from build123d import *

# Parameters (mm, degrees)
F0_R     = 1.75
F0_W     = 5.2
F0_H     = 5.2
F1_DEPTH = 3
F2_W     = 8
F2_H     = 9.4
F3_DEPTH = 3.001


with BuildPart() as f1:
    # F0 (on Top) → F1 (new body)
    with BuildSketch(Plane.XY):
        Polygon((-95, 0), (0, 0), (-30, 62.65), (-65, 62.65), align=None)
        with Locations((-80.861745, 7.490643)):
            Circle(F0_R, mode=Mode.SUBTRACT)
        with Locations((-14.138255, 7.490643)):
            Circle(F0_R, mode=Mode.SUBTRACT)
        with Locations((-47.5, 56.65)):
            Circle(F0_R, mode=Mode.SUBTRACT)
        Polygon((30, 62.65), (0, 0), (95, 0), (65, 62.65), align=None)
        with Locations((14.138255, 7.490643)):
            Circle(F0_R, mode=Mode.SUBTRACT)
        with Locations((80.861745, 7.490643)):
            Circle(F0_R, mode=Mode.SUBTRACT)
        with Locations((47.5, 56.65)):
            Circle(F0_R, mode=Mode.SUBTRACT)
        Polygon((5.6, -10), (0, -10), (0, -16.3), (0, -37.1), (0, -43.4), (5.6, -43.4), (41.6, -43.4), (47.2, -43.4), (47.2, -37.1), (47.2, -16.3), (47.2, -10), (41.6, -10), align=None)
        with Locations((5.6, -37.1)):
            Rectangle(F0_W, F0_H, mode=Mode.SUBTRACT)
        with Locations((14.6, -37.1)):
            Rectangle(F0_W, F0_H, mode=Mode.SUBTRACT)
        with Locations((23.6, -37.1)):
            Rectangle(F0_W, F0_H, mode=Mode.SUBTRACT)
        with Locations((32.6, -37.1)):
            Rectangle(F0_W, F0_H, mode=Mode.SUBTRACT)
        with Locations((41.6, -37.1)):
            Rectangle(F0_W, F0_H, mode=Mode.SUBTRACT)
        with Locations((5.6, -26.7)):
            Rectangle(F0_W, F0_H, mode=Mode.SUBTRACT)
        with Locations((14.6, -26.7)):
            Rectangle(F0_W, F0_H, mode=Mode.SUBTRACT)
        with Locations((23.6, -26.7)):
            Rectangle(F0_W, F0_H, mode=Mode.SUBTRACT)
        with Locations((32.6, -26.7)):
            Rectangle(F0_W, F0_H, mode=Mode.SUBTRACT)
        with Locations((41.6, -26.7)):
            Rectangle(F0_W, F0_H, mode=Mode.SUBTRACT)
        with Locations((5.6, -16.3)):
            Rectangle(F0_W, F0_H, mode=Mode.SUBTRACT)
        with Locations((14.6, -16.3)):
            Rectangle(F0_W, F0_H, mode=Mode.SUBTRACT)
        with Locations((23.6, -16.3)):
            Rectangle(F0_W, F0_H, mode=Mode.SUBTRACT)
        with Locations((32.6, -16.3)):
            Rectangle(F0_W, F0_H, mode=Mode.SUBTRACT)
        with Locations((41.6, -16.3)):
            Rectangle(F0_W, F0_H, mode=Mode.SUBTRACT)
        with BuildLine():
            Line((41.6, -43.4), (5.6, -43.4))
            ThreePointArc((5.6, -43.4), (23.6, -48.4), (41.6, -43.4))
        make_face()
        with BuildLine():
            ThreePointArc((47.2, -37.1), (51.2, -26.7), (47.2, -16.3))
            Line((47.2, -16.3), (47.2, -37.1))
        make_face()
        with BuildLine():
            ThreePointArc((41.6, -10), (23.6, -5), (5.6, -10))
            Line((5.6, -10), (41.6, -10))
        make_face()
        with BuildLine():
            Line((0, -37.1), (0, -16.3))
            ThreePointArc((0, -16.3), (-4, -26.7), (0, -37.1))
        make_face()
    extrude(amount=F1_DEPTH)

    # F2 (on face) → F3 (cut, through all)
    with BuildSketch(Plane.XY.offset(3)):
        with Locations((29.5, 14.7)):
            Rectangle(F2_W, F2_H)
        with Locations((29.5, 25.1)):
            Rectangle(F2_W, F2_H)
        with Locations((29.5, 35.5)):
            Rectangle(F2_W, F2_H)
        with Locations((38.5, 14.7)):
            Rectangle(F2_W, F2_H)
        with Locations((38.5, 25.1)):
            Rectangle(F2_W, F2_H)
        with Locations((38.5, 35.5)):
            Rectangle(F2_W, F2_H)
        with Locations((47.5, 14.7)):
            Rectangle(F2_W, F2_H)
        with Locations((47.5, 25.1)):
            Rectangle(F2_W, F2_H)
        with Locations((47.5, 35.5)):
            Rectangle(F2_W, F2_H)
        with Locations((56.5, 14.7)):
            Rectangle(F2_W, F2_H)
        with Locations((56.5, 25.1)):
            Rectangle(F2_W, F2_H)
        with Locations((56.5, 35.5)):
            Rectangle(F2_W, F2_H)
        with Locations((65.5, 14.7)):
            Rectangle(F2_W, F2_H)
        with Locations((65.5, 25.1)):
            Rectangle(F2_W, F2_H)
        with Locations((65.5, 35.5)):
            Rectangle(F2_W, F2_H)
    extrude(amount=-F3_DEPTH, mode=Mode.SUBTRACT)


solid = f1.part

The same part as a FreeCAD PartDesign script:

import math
import FreeCAD as App
import Part
import Sketcher

V = App.Vector
Q = App.Units.Quantity

doc = App.newDocument("Part")
body = doc.addObject("PartDesign::Body", "Body")
body.AllowCompound = True

sketch1 = body.newObject("Sketcher::SketchObject", "Sketch")
sketch1.AttachmentSupport = (doc.getObject("XY_Plane"), [""])
sketch1.MapMode = "FlatFace"
sketch1.addGeometry(Part.LineSegment(V(-95, 0, 0), V(0, 0, 0)), False)
sketch1.addGeometry(Part.LineSegment(V(0, 0, 0), V(-30, 62.6, 0)), False)
sketch1.addGeometry(Part.LineSegment(V(-30, 62.6, 0), V(-65, 62.6, 0)), False)
sketch1.addGeometry(Part.LineSegment(V(-65, 62.6, 0), V(-95, 0, 0)), False)
sketch1.addGeometry(Part.Circle(V(-80.9, 7.5, 0), V(0, 0, 1), 1.8), False)
sketch1.addGeometry(Part.Circle(V(-14.1, 7.5, 0), V(0, 0, 1), 1.8), False)
sketch1.addGeometry(Part.Circle(V(-47.5, 56.6, 0), V(0, 0, 1), 1.8), False)
sketch1.addGeometry(Part.LineSegment(V(30, 62.6, 0), V(0, 0, 0)), False)
sketch1.addGeometry(Part.LineSegment(V(0, 0, 0), V(95, 0, 0)), False)
sketch1.addGeometry(Part.LineSegment(V(95, 0, 0), V(65, 62.6, 0)), False)
sketch1.addGeometry(Part.LineSegment(V(65, 62.6, 0), V(30, 62.6, 0)), False)
sketch1.addGeometry(Part.Circle(V(14.1, 7.5, 0), V(0, 0, 1), 1.8), False)
sketch1.addGeometry(Part.Circle(V(80.9, 7.5, 0), V(0, 0, 1), 1.8), False)
sketch1.addGeometry(Part.Circle(V(47.5, 56.6, 0), V(0, 0, 1), 1.8), False)
sketch1.addGeometry(Part.LineSegment(V(0, -10, 0), V(0, -16.3, 0)), False)
sketch1.addGeometry(Part.ArcOfCircle(Part.Circle(V(11.5, -26.7, 0), V(0, 0, 1), 15.5), math.radians(138), math.radians(222)), False)
sketch1.addGeometry(Part.LineSegment(V(0, -37.1, 0), V(0, -43.4, 0)), False)
sketch1.addGeometry(Part.LineSegment(V(0, -43.4, 0), V(5.6, -43.4, 0)), False)
sketch1.addGeometry(Part.ArcOfCircle(Part.Circle(V(23.6, -13.5, 0), V(0, 0, 1), 34.9), math.radians(-121), math.radians(-59)), False)
sketch1.addGeometry(Part.LineSegment(V(41.6, -43.4, 0), V(47.2, -43.4, 0)), False)
sketch1.addGeometry(Part.LineSegment(V(47.2, -43.4, 0), V(47.2, -37.1, 0)), False)
sketch1.addGeometry(Part.ArcOfCircle(Part.Circle(V(35.7, -26.7, 0), V(0, 0, 1), 15.5), math.radians(-42), math.radians(42)), False)
sketch1.addGeometry(Part.LineSegment(V(47.2, -16.3, 0), V(47.2, -10, 0)), False)
sketch1.addGeometry(Part.LineSegment(V(47.2, -10, 0), V(41.6, -10, 0)), False)
sketch1.addGeometry(Part.ArcOfCircle(Part.Circle(V(23.6, -39.9, 0), V(0, 0, 1), 34.9), math.radians(59), math.radians(121)), False)
sketch1.addGeometry(Part.LineSegment(V(5.6, -10, 0), V(0, -10, 0)), False)
sketch1.addGeometry(Part.LineSegment(V(8.2, -39.7, 0), V(3, -39.7, 0)), False)
sketch1.addGeometry(Part.LineSegment(V(3, -39.7, 0), V(3, -34.5, 0)), False)
sketch1.addGeometry(Part.LineSegment(V(3, -34.5, 0), V(8.2, -34.5, 0)), False)
sketch1.addGeometry(Part.LineSegment(V(8.2, -34.5, 0), V(8.2, -39.7, 0)), False)
sketch1.addGeometry(Part.LineSegment(V(17.2, -39.7, 0), V(12, -39.7, 0)), False)
sketch1.addGeometry(Part.LineSegment(V(12, -39.7, 0), V(12, -34.5, 0)), False)
sketch1.addGeometry(Part.LineSegment(V(12, -34.5, 0), V(17.2, -34.5, 0)), False)
sketch1.addGeometry(Part.LineSegment(V(17.2, -34.5, 0), V(17.2, -39.7, 0)), False)
sketch1.addGeometry(Part.LineSegment(V(26.2, -39.7, 0), V(21, -39.7, 0)), False)
sketch1.addGeometry(Part.LineSegment(V(21, -39.7, 0), V(21, -34.5, 0)), False)
sketch1.addGeometry(Part.LineSegment(V(21, -34.5, 0), V(26.2, -34.5, 0)), False)
sketch1.addGeometry(Part.LineSegment(V(26.2, -34.5, 0), V(26.2, -39.7, 0)), False)
sketch1.addGeometry(Part.LineSegment(V(35.2, -39.7, 0), V(30, -39.7, 0)), False)
sketch1.addGeometry(Part.LineSegment(V(30, -39.7, 0), V(30, -34.5, 0)), False)
sketch1.addGeometry(Part.LineSegment(V(30, -34.5, 0), V(35.2, -34.5, 0)), False)
sketch1.addGeometry(Part.LineSegment(V(35.2, -34.5, 0), V(35.2, -39.7, 0)), False)
sketch1.addGeometry(Part.LineSegment(V(44.2, -39.7, 0), V(39, -39.7, 0)), False)
sketch1.addGeometry(Part.LineSegment(V(39, -39.7, 0), V(39, -34.5, 0)), False)
sketch1.addGeometry(Part.LineSegment(V(39, -34.5, 0), V(44.2, -34.5, 0)), False)
sketch1.addGeometry(Part.LineSegment(V(44.2, -34.5, 0), V(44.2, -39.7, 0)), False)
sketch1.addGeometry(Part.LineSegment(V(8.2, -29.3, 0), V(3, -29.3, 0)), False)
sketch1.addGeometry(Part.LineSegment(V(3, -29.3, 0), V(3, -24.1, 0)), False)
sketch1.addGeometry(Part.LineSegment(V(3, -24.1, 0), V(8.2, -24.1, 0)), False)
sketch1.addGeometry(Part.LineSegment(V(8.2, -24.1, 0), V(8.2, -29.3, 0)), False)
sketch1.addGeometry(Part.LineSegment(V(17.2, -29.3, 0), V(12, -29.3, 0)), False)
sketch1.addGeometry(Part.LineSegment(V(12, -29.3, 0), V(12, -24.1, 0)), False)
sketch1.addGeometry(Part.LineSegment(V(12, -24.1, 0), V(17.2, -24.1, 0)), False)
sketch1.addGeometry(Part.LineSegment(V(17.2, -24.1, 0), V(17.2, -29.3, 0)), False)
sketch1.addGeometry(Part.LineSegment(V(8.2, -18.9, 0), V(3, -18.9, 0)), False)
sketch1.addGeometry(Part.LineSegment(V(3, -18.9, 0), V(3, -13.7, 0)), False)
sketch1.addGeometry(Part.LineSegment(V(3, -13.7, 0), V(8.2, -13.7, 0)), False)
sketch1.addGeometry(Part.LineSegment(V(8.2, -13.7, 0), V(8.2, -18.9, 0)), False)
sketch1.addGeometry(Part.LineSegment(V(17.2, -18.9, 0), V(12, -18.9, 0)), False)
sketch1.addGeometry(Part.LineSegment(V(12, -18.9, 0), V(12, -13.7, 0)), False)
sketch1.addGeometry(Part.LineSegment(V(12, -13.7, 0), V(17.2, -13.7, 0)), False)
sketch1.addGeometry(Part.LineSegment(V(17.2, -13.7, 0), V(17.2, -18.9, 0)), False)
sketch1.addGeometry(Part.LineSegment(V(26.2, -29.3, 0), V(21, -29.3, 0)), False)
sketch1.addGeometry(Part.LineSegment(V(21, -29.3, 0), V(21, -24.1, 0)), False)
sketch1.addGeometry(Part.LineSegment(V(21, -24.1, 0), V(26.2, -24.1, 0)), False)
sketch1.addGeometry(Part.LineSegment(V(26.2, -24.1, 0), V(26.2, -29.3, 0)), False)
sketch1.addGeometry(Part.LineSegment(V(35.2, -29.3, 0), V(30, -29.3, 0)), False)
sketch1.addGeometry(Part.LineSegment(V(30, -29.3, 0), V(30, -24.1, 0)), False)
sketch1.addGeometry(Part.LineSegment(V(30, -24.1, 0), V(35.2, -24.1, 0)), False)
sketch1.addGeometry(Part.LineSegment(V(35.2, -24.1, 0), V(35.2, -29.3, 0)), False)
sketch1.addGeometry(Part.LineSegment(V(44.2, -29.3, 0), V(39, -29.3, 0)), False)
sketch1.addGeometry(Part.LineSegment(V(39, -29.3, 0), V(39, -24.1, 0)), False)
sketch1.addGeometry(Part.LineSegment(V(39, -24.1, 0), V(44.2, -24.1, 0)), False)
sketch1.addGeometry(Part.LineSegment(V(44.2, -24.1, 0), V(44.2, -29.3, 0)), False)
sketch1.addGeometry(Part.LineSegment(V(26.2, -18.9, 0), V(21, -18.9, 0)), False)
sketch1.addGeometry(Part.LineSegment(V(21, -18.9, 0), V(21, -13.7, 0)), False)
sketch1.addGeometry(Part.LineSegment(V(21, -13.7, 0), V(26.2, -13.7, 0)), False)
sketch1.addGeometry(Part.LineSegment(V(26.2, -13.7, 0), V(26.2, -18.9, 0)), False)
sketch1.addGeometry(Part.LineSegment(V(35.2, -18.9, 0), V(30, -18.9, 0)), False)
sketch1.addGeometry(Part.LineSegment(V(30, -18.9, 0), V(30, -13.7, 0)), False)
sketch1.addGeometry(Part.LineSegment(V(30, -13.7, 0), V(35.2, -13.7, 0)), False)
sketch1.addGeometry(Part.LineSegment(V(35.2, -13.7, 0), V(35.2, -18.9, 0)), False)
sketch1.addGeometry(Part.LineSegment(V(44.2, -18.9, 0), V(39, -18.9, 0)), False)
sketch1.addGeometry(Part.LineSegment(V(39, -18.9, 0), V(39, -13.7, 0)), False)
sketch1.addGeometry(Part.LineSegment(V(39, -13.7, 0), V(44.2, -13.7, 0)), False)
sketch1.addGeometry(Part.LineSegment(V(44.2, -13.7, 0), V(44.2, -18.9, 0)), False)
sketch1.addConstraint(Sketcher.Constraint("Coincident", 0, 2, 1, 1))
sketch1.addConstraint(Sketcher.Constraint("Coincident", 1, 2, 2, 1))
sketch1.addConstraint(Sketcher.Constraint("Coincident", 2, 2, 3, 1))
sketch1.addConstraint(Sketcher.Constraint("Coincident", 3, 2, 0, 1))
sketch1.addConstraint(Sketcher.Constraint("Coincident", 7, 2, 8, 1))
sketch1.addConstraint(Sketcher.Constraint("Coincident", 8, 2, 9, 1))
sketch1.addConstraint(Sketcher.Constraint("Coincident", 9, 2, 10, 1))
sketch1.addConstraint(Sketcher.Constraint("Coincident", 10, 2, 7, 1))
sketch1.addConstraint(Sketcher.Constraint("Coincident", 14, 2, 15, 1))
sketch1.addConstraint(Sketcher.Constraint("Coincident", 15, 2, 16, 1))
sketch1.addConstraint(Sketcher.Constraint("Coincident", 16, 2, 17, 1))
sketch1.addConstraint(Sketcher.Constraint("Coincident", 17, 2, 18, 1))
sketch1.addConstraint(Sketcher.Constraint("Coincident", 18, 2, 19, 1))
sketch1.addConstraint(Sketcher.Constraint("Coincident", 19, 2, 20, 1))
sketch1.addConstraint(Sketcher.Constraint("Coincident", 20, 2, 21, 1))
sketch1.addConstraint(Sketcher.Constraint("Coincident", 21, 2, 22, 1))
sketch1.addConstraint(Sketcher.Constraint("Coincident", 22, 2, 23, 1))
sketch1.addConstraint(Sketcher.Constraint("Coincident", 23, 2, 24, 1))
sketch1.addConstraint(Sketcher.Constraint("Coincident", 24, 2, 25, 1))
sketch1.addConstraint(Sketcher.Constraint("Coincident", 25, 2, 14, 1))
sketch1.addConstraint(Sketcher.Constraint("Coincident", 26, 2, 27, 1))
sketch1.addConstraint(Sketcher.Constraint("Coincident", 27, 2, 28, 1))
sketch1.addConstraint(Sketcher.Constraint("Coincident", 28, 2, 29, 1))
sketch1.addConstraint(Sketcher.Constraint("Coincident", 29, 2, 26, 1))
sketch1.addConstraint(Sketcher.Constraint("Coincident", 30, 2, 31, 1))
sketch1.addConstraint(Sketcher.Constraint("Coincident", 31, 2, 32, 1))
sketch1.addConstraint(Sketcher.Constraint("Coincident", 32, 2, 33, 1))
sketch1.addConstraint(Sketcher.Constraint("Coincident", 33, 2, 30, 1))
sketch1.addConstraint(Sketcher.Constraint("Coincident", 34, 2, 35, 1))
sketch1.addConstraint(Sketcher.Constraint("Coincident", 35, 2, 36, 1))
sketch1.addConstraint(Sketcher.Constraint("Coincident", 36, 2, 37, 1))
sketch1.addConstraint(Sketcher.Constraint("Coincident", 37, 2, 34, 1))
sketch1.addConstraint(Sketcher.Constraint("Coincident", 38, 2, 39, 1))
sketch1.addConstraint(Sketcher.Constraint("Coincident", 39, 2, 40, 1))
sketch1.addConstraint(Sketcher.Constraint("Coincident", 40, 2, 41, 1))
sketch1.addConstraint(Sketcher.Constraint("Coincident", 41, 2, 38, 1))
sketch1.addConstraint(Sketcher.Constraint("Coincident", 42, 2, 43, 1))
sketch1.addConstraint(Sketcher.Constraint("Coincident", 43, 2, 44, 1))
sketch1.addConstraint(Sketcher.Constraint("Coincident", 44, 2, 45, 1))
sketch1.addConstraint(Sketcher.Constraint("Coincident", 45, 2, 42, 1))
sketch1.addConstraint(Sketcher.Constraint("Coincident", 46, 2, 47, 1))
sketch1.addConstraint(Sketcher.Constraint("Coincident", 47, 2, 48, 1))
sketch1.addConstraint(Sketcher.Constraint("Coincident", 48, 2, 49, 1))
sketch1.addConstraint(Sketcher.Constraint("Coincident", 49, 2, 46, 1))
sketch1.addConstraint(Sketcher.Constraint("Coincident", 50, 2, 51, 1))
sketch1.addConstraint(Sketcher.Constraint("Coincident", 51, 2, 52, 1))
sketch1.addConstraint(Sketcher.Constraint("Coincident", 52, 2, 53, 1))
sketch1.addConstraint(Sketcher.Constraint("Coincident", 53, 2, 50, 1))
sketch1.addConstraint(Sketcher.Constraint("Coincident", 54, 2, 55, 1))
sketch1.addConstraint(Sketcher.Constraint("Coincident", 55, 2, 56, 1))
sketch1.addConstraint(Sketcher.Constraint("Coincident", 56, 2, 57, 1))
sketch1.addConstraint(Sketcher.Constraint("Coincident", 57, 2, 54, 1))
sketch1.addConstraint(Sketcher.Constraint("Coincident", 58, 2, 59, 1))
sketch1.addConstraint(Sketcher.Constraint("Coincident", 59, 2, 60, 1))
sketch1.addConstraint(Sketcher.Constraint("Coincident", 60, 2, 61, 1))
sketch1.addConstraint(Sketcher.Constraint("Coincident", 61, 2, 58, 1))
sketch1.addConstraint(Sketcher.Constraint("Coincident", 62, 2, 63, 1))
sketch1.addConstraint(Sketcher.Constraint("Coincident", 63, 2, 64, 1))
sketch1.addConstraint(Sketcher.Constraint("Coincident", 64, 2, 65, 1))
sketch1.addConstraint(Sketcher.Constraint("Coincident", 65, 2, 62, 1))
sketch1.addConstraint(Sketcher.Constraint("Coincident", 66, 2, 67, 1))
sketch1.addConstraint(Sketcher.Constraint("Coincident", 67, 2, 68, 1))
sketch1.addConstraint(Sketcher.Constraint("Coincident", 68, 2, 69, 1))
sketch1.addConstraint(Sketcher.Constraint("Coincident", 69, 2, 66, 1))
sketch1.addConstraint(Sketcher.Constraint("Coincident", 70, 2, 71, 1))
sketch1.addConstraint(Sketcher.Constraint("Coincident", 71, 2, 72, 1))
sketch1.addConstraint(Sketcher.Constraint("Coincident", 72, 2, 73, 1))
sketch1.addConstraint(Sketcher.Constraint("Coincident", 73, 2, 70, 1))
sketch1.addConstraint(Sketcher.Constraint("Coincident", 74, 2, 75, 1))
sketch1.addConstraint(Sketcher.Constraint("Coincident", 75, 2, 76, 1))
sketch1.addConstraint(Sketcher.Constraint("Coincident", 76, 2, 77, 1))
sketch1.addConstraint(Sketcher.Constraint("Coincident", 77, 2, 74, 1))
sketch1.addConstraint(Sketcher.Constraint("Coincident", 78, 2, 79, 1))
sketch1.addConstraint(Sketcher.Constraint("Coincident", 79, 2, 80, 1))
sketch1.addConstraint(Sketcher.Constraint("Coincident", 80, 2, 81, 1))
sketch1.addConstraint(Sketcher.Constraint("Coincident", 81, 2, 78, 1))
sketch1.addConstraint(Sketcher.Constraint("Coincident", 82, 2, 83, 1))
sketch1.addConstraint(Sketcher.Constraint("Coincident", 83, 2, 84, 1))
sketch1.addConstraint(Sketcher.Constraint("Coincident", 84, 2, 85, 1))
sketch1.addConstraint(Sketcher.Constraint("Coincident", 85, 2, 82, 1))
sketch1.addConstraint(Sketcher.Constraint("Horizontal", 0))
sketch1.addConstraint(Sketcher.Constraint("Horizontal", 2))
sketch1.addConstraint(Sketcher.Constraint("Horizontal", 8))
sketch1.addConstraint(Sketcher.Constraint("Horizontal", 10))
sketch1.addConstraint(Sketcher.Constraint("Vertical", 14))
sketch1.addConstraint(Sketcher.Constraint("Vertical", 16))
sketch1.addConstraint(Sketcher.Constraint("Horizontal", 17))
sketch1.addConstraint(Sketcher.Constraint("Horizontal", 19))
sketch1.addConstraint(Sketcher.Constraint("Vertical", 20))
sketch1.addConstraint(Sketcher.Constraint("Vertical", 22))
sketch1.addConstraint(Sketcher.Constraint("Horizontal", 23))
sketch1.addConstraint(Sketcher.Constraint("Horizontal", 25))
sketch1.addConstraint(Sketcher.Constraint("Horizontal", 26))
sketch1.addConstraint(Sketcher.Constraint("Vertical", 27))
sketch1.addConstraint(Sketcher.Constraint("Horizontal", 28))
sketch1.addConstraint(Sketcher.Constraint("Vertical", 29))
sketch1.addConstraint(Sketcher.Constraint("Horizontal", 30))
sketch1.addConstraint(Sketcher.Constraint("Vertical", 31))
sketch1.addConstraint(Sketcher.Constraint("Horizontal", 32))
sketch1.addConstraint(Sketcher.Constraint("Vertical", 33))
sketch1.addConstraint(Sketcher.Constraint("Horizontal", 34))
sketch1.addConstraint(Sketcher.Constraint("Vertical", 35))
sketch1.addConstraint(Sketcher.Constraint("Horizontal", 36))
sketch1.addConstraint(Sketcher.Constraint("Vertical", 37))
sketch1.addConstraint(Sketcher.Constraint("Horizontal", 38))
sketch1.addConstraint(Sketcher.Constraint("Vertical", 39))
sketch1.addConstraint(Sketcher.Constraint("Horizontal", 40))
sketch1.addConstraint(Sketcher.Constraint("Vertical", 41))
sketch1.addConstraint(Sketcher.Constraint("Horizontal", 42))
sketch1.addConstraint(Sketcher.Constraint("Vertical", 43))
sketch1.addConstraint(Sketcher.Constraint("Horizontal", 44))
sketch1.addConstraint(Sketcher.Constraint("Vertical", 45))
sketch1.addConstraint(Sketcher.Constraint("Horizontal", 46))
sketch1.addConstraint(Sketcher.Constraint("Vertical", 47))
sketch1.addConstraint(Sketcher.Constraint("Horizontal", 48))
sketch1.addConstraint(Sketcher.Constraint("Vertical", 49))
sketch1.addConstraint(Sketcher.Constraint("Horizontal", 50))
sketch1.addConstraint(Sketcher.Constraint("Vertical", 51))
sketch1.addConstraint(Sketcher.Constraint("Horizontal", 52))
sketch1.addConstraint(Sketcher.Constraint("Vertical", 53))
sketch1.addConstraint(Sketcher.Constraint("Horizontal", 54))
sketch1.addConstraint(Sketcher.Constraint("Vertical", 55))
sketch1.addConstraint(Sketcher.Constraint("Horizontal", 56))
sketch1.addConstraint(Sketcher.Constraint("Vertical", 57))
sketch1.addConstraint(Sketcher.Constraint("Horizontal", 58))
sketch1.addConstraint(Sketcher.Constraint("Vertical", 59))
sketch1.addConstraint(Sketcher.Constraint("Horizontal", 60))
sketch1.addConstraint(Sketcher.Constraint("Vertical", 61))
sketch1.addConstraint(Sketcher.Constraint("Horizontal", 62))
sketch1.addConstraint(Sketcher.Constraint("Vertical", 63))
sketch1.addConstraint(Sketcher.Constraint("Horizontal", 64))
sketch1.addConstraint(Sketcher.Constraint("Vertical", 65))
sketch1.addConstraint(Sketcher.Constraint("Horizontal", 66))
sketch1.addConstraint(Sketcher.Constraint("Vertical", 67))
sketch1.addConstraint(Sketcher.Constraint("Horizontal", 68))
sketch1.addConstraint(Sketcher.Constraint("Vertical", 69))
sketch1.addConstraint(Sketcher.Constraint("Horizontal", 70))
sketch1.addConstraint(Sketcher.Constraint("Vertical", 71))
sketch1.addConstraint(Sketcher.Constraint("Horizontal", 72))
sketch1.addConstraint(Sketcher.Constraint("Vertical", 73))
sketch1.addConstraint(Sketcher.Constraint("Horizontal", 74))
sketch1.addConstraint(Sketcher.Constraint("Vertical", 75))
sketch1.addConstraint(Sketcher.Constraint("Horizontal", 76))
sketch1.addConstraint(Sketcher.Constraint("Vertical", 77))
sketch1.addConstraint(Sketcher.Constraint("Horizontal", 78))
sketch1.addConstraint(Sketcher.Constraint("Vertical", 79))
sketch1.addConstraint(Sketcher.Constraint("Horizontal", 80))
sketch1.addConstraint(Sketcher.Constraint("Vertical", 81))
sketch1.addConstraint(Sketcher.Constraint("Horizontal", 82))
sketch1.addConstraint(Sketcher.Constraint("Vertical", 83))
sketch1.addConstraint(Sketcher.Constraint("Horizontal", 84))
sketch1.addConstraint(Sketcher.Constraint("Vertical", 85))
sketch1.addConstraint(Sketcher.Constraint("Coincident", 0, 2, -1, 1))
sketch1.addConstraint(Sketcher.Constraint("Coincident", 7, 2, -1, 1))
sketch1.addConstraint(Sketcher.Constraint("Equal", 4, 5))
sketch1.addConstraint(Sketcher.Constraint("Equal", 5, 6))
sketch1.addConstraint(Sketcher.Constraint("Equal", 6, 11))
sketch1.addConstraint(Sketcher.Constraint("Equal", 11, 12))
sketch1.addConstraint(Sketcher.Constraint("Equal", 12, 13))
sketch1.addConstraint(Sketcher.Constraint("Equal", 15, 21))
sketch1.addConstraint(Sketcher.Constraint("Equal", 18, 24))
sketch1.addConstraint(Sketcher.Constraint("Symmetric", 5, 3, 11, 3, -2))
sketch1.addConstraint(Sketcher.Constraint("Symmetric", 4, 3, 12, 3, -2))
sketch1.addConstraint(Sketcher.Constraint("Symmetric", 6, 3, 13, 3, -2))
sketch1.addConstraint(Sketcher.Constraint("Symmetric", 2, 2, 9, 2, -2))
sketch1.addConstraint(Sketcher.Constraint("PointOnObject", 14, 2, -2))
sketch1.addConstraint(Sketcher.Constraint("PointOnObject", 15, 2, -2))
sketch1.addConstraint(Sketcher.Constraint("Parallel", 3, 7))
sketch1.addConstraint(Sketcher.Constraint("Parallel", 1, 9))
sketch1.addConstraint(Sketcher.Constraint("Horizontal", 4, 3, 5, 3))
sketch1.addConstraint(Sketcher.Constraint("Horizontal", 15, 3, 21, 3))
sketch1.addConstraint(Sketcher.Constraint("Horizontal", 17, 2, 18, 2))
sketch1.addConstraint(Sketcher.Constraint("Horizontal", 15, 2, 20, 2))
sketch1.addConstraint(Sketcher.Constraint("Horizontal", 14, 2, 21, 2))
sketch1.addConstraint(Sketcher.Constraint("Horizontal", 23, 2, 24, 2))
sketch1.addConstraint(Sketcher.Constraint("Horizontal", 29, 2, 30, 2))
sketch1.addConstraint(Sketcher.Constraint("Horizontal", 28, 2, 31, 2))
sketch1.addConstraint(Sketcher.Constraint("Horizontal", 33, 2, 34, 2))
sketch1.addConstraint(Sketcher.Constraint("Horizontal", 32, 2, 35, 2))
sketch1.addConstraint(Sketcher.Constraint("Horizontal", 37, 2, 38, 2))
sketch1.addConstraint(Sketcher.Constraint("Horizontal", 36, 2, 39, 2))
sketch1.addConstraint(Sketcher.Constraint("Horizontal", 41, 2, 42, 2))
sketch1.addConstraint(Sketcher.Constraint("Horizontal", 40, 2, 43, 2))
sketch1.addConstraint(Sketcher.Constraint("Horizontal", 49, 2, 50, 2))
sketch1.addConstraint(Sketcher.Constraint("Horizontal", 48, 2, 51, 2))
sketch1.addConstraint(Sketcher.Constraint("Horizontal", 57, 2, 58, 2))
sketch1.addConstraint(Sketcher.Constraint("Horizontal", 56, 2, 59, 2))
sketch1.addConstraint(Sketcher.Constraint("Horizontal", 53, 2, 62, 2))
sketch1.addConstraint(Sketcher.Constraint("Horizontal", 52, 2, 63, 2))
sketch1.addConstraint(Sketcher.Constraint("Horizontal", 65, 2, 66, 2))
sketch1.addConstraint(Sketcher.Constraint("Horizontal", 64, 2, 67, 2))
sketch1.addConstraint(Sketcher.Constraint("Horizontal", 69, 2, 70, 2))
sketch1.addConstraint(Sketcher.Constraint("Horizontal", 68, 2, 71, 2))
sketch1.addConstraint(Sketcher.Constraint("Horizontal", 61, 2, 74, 2))
sketch1.addConstraint(Sketcher.Constraint("Horizontal", 60, 2, 75, 2))
sketch1.addConstraint(Sketcher.Constraint("Horizontal", 77, 2, 78, 2))
sketch1.addConstraint(Sketcher.Constraint("Horizontal", 76, 2, 79, 2))
sketch1.addConstraint(Sketcher.Constraint("Horizontal", 81, 2, 82, 2))
sketch1.addConstraint(Sketcher.Constraint("Horizontal", 80, 2, 83, 2))
sketch1.addConstraint(Sketcher.Constraint("Vertical", 18, 3, 24, 3))
sketch1.addConstraint(Sketcher.Constraint("Vertical", 18, 2, 23, 2))
sketch1.addConstraint(Sketcher.Constraint("Vertical", 10, 2, 38, 2))
sketch1.addConstraint(Sketcher.Constraint("Vertical", 27, 2, 46, 2))
sketch1.addConstraint(Sketcher.Constraint("Vertical", 29, 2, 48, 2))
sketch1.addConstraint(Sketcher.Constraint("Vertical", 31, 2, 50, 2))
sketch1.addConstraint(Sketcher.Constraint("Vertical", 33, 2, 52, 2))
sketch1.addConstraint(Sketcher.Constraint("Vertical", 47, 2, 54, 2))
sketch1.addConstraint(Sketcher.Constraint("Vertical", 49, 2, 56, 2))
sketch1.addConstraint(Sketcher.Constraint("Vertical", 51, 2, 58, 2))
sketch1.addConstraint(Sketcher.Constraint("Vertical", 53, 2, 60, 2))
sketch1.addConstraint(Sketcher.Constraint("Vertical", 35, 2, 62, 2))
sketch1.addConstraint(Sketcher.Constraint("Vertical", 37, 2, 64, 2))
sketch1.addConstraint(Sketcher.Constraint("Vertical", 39, 2, 66, 2))
sketch1.addConstraint(Sketcher.Constraint("Vertical", 41, 2, 68, 2))
sketch1.addConstraint(Sketcher.Constraint("Vertical", 43, 2, 70, 2))
sketch1.addConstraint(Sketcher.Constraint("Vertical", 45, 2, 72, 2))
sketch1.addConstraint(Sketcher.Constraint("Vertical", 63, 2, 74, 2))
sketch1.addConstraint(Sketcher.Constraint("Vertical", 65, 2, 76, 2))
sketch1.addConstraint(Sketcher.Constraint("Vertical", 67, 2, 78, 2))
sketch1.addConstraint(Sketcher.Constraint("Vertical", 69, 2, 80, 2))
sketch1.addConstraint(Sketcher.Constraint("Vertical", 71, 2, 82, 2))
sketch1.addConstraint(Sketcher.Constraint("Vertical", 73, 2, 84, 2))
sketch1.addConstraint(Sketcher.Constraint("Equal", 0, 8))
sketch1.addConstraint(Sketcher.Constraint("Equal", 17, 19))
sketch1.addConstraint(Sketcher.Constraint("Equal", 28, 30))
sketch1.addConstraint(Sketcher.Constraint("Equal", 32, 34))
sketch1.addConstraint(Sketcher.Constraint("Equal", 36, 38))
sketch1.addConstraint(Sketcher.Constraint("Equal", 40, 42))
sketch1.addConstraint(Sketcher.Constraint("Equal", 14, 16))
sketch1.addConstraint(Sketcher.Constraint("Equal", 84, 27))
sketch1.addConstraint(Sketcher.Constraint("Equal", 45, 47))
sketch1.addConstraint(Sketcher.Constraint("Equal", 53, 55))
sketch1.addConstraint(Sketcher.Constraint("Diameter", 4, Q("3.5 mm")))
sketch1.addConstraint(Sketcher.Constraint("Radius", 18, Q("34.9 mm")))
sketch1.addConstraint(Sketcher.Constraint("DistanceX", 0, 1, 0, 2, Q("95 mm")))
sketch1.addConstraint(Sketcher.Constraint("DistanceX", 2, 2, 2, 1, Q("35 mm")))
sketch1.addConstraint(Sketcher.Constraint("Radius", 15, Q("15.52 mm")))
sketch1.addConstraint(Sketcher.Constraint("DistanceX", 17, 1, 17, 2, Q("5.6 mm")))
sketch1.addConstraint(Sketcher.Constraint("DistanceX", 26, 2, 26, 1, Q("5.2 mm")))
sketch1.addConstraint(Sketcher.Constraint("DistanceY", 14, 2, 14, 1, Q("6.3 mm")))
sketch1.addConstraint(Sketcher.Constraint("DistanceY", 22, 2, -1, 1, Q("10 mm")))
sketch1.addConstraint(Sketcher.Constraint("DistanceX", -1, 1, 26, 2, Q("3 mm")))
sketch1.addConstraint(Sketcher.Constraint("DistanceX", -1, 1, 30, 2, Q("12 mm")))
sketch1.addConstraint(Sketcher.Constraint("DistanceX", -1, 1, 34, 2, Q("21 mm")))
sketch1.addConstraint(Sketcher.Constraint("DistanceX", -1, 1, 42, 2, Q("39 mm")))
sketch1.addConstraint(Sketcher.Constraint("DistanceX", 6, 3, -1, 1, Q("47.5 mm")))
sketch1.addConstraint(Sketcher.Constraint("DistanceY", 15, 3, -1, 1, Q("26.7 mm")))
sketch1.addConstraint(Sketcher.Constraint("DistanceX", -1, 1, 18, 3, Q("23.6 mm")))
sketch1.addConstraint(Sketcher.Constraint("DistanceY", 26, 2, -1, 1, Q("39.7 mm")))
sketch1.addConstraint(Sketcher.Constraint("DistanceY", 46, 2, -1, 1, Q("29.3 mm")))
sketch1.addConstraint(Sketcher.Constraint("DistanceY", 54, 2, -1, 1, Q("18.9 mm")))
sketch1.addConstraint(Sketcher.Constraint("DistanceY", -1, 1, 6, 3, Q("56.65 mm")))
sketch1.addConstraint(Sketcher.Constraint("DistanceY", -1, 1, 1, 2, Q("62.65 mm")))
sketch1.addConstraint(Sketcher.Constraint("DistanceX", 4, 3, -1, 1, Q("80.861745 mm")))
sketch1.addConstraint(Sketcher.Constraint("DistanceY", -1, 1, 4, 3, Q("7.490643 mm")))
sketch1.addConstraint(Sketcher.Constraint("DistanceX", 5, 3, -1, 1, Q("14.138255 mm")))
pad1 = body.newObject("PartDesign::Pad", "Pad")
pad1.Profile = sketch1
pad1.Length = 3

sketch2 = body.newObject("Sketcher::SketchObject", "Sketch001")
sketch2.AttachmentSupport = (doc.getObject("XY_Plane"), [""])
sketch2.MapMode = "FlatFace"
sketch2.AttachmentOffset = App.Placement(V(0, 0, 3), App.Rotation())
sketch2.addGeometry(Part.LineSegment(V(26, 19, 0), V(26, 10, 0)), False)
sketch2.addGeometry(Part.LineSegment(V(26, 10, 0), V(34, 10, 0)), False)
sketch2.addGeometry(Part.LineSegment(V(34, 10, 0), V(34, 19, 0)), False)
sketch2.addGeometry(Part.LineSegment(V(34, 19, 0), V(26, 19, 0)), False)
sketch2.addGeometry(Part.LineSegment(V(26, 30, 0), V(26, 20, 0)), False)
sketch2.addGeometry(Part.LineSegment(V(26, 20, 0), V(34, 20, 0)), False)
sketch2.addGeometry(Part.LineSegment(V(34, 20, 0), V(34, 30, 0)), False)
sketch2.addGeometry(Part.LineSegment(V(34, 30, 0), V(26, 30, 0)), False)
sketch2.addGeometry(Part.LineSegment(V(26, 40, 0), V(26, 31, 0)), False)
sketch2.addGeometry(Part.LineSegment(V(26, 31, 0), V(34, 31, 0)), False)
sketch2.addGeometry(Part.LineSegment(V(34, 31, 0), V(34, 40, 0)), False)
sketch2.addGeometry(Part.LineSegment(V(34, 40, 0), V(26, 40, 0)), False)
sketch2.addGeometry(Part.LineSegment(V(34, 19, 0), V(34, 10, 0)), False)
sketch2.addGeometry(Part.LineSegment(V(34, 10, 0), V(42, 10, 0)), False)
sketch2.addGeometry(Part.LineSegment(V(42, 10, 0), V(42, 19, 0)), False)
sketch2.addGeometry(Part.LineSegment(V(42, 19, 0), V(34, 19, 0)), False)
sketch2.addGeometry(Part.LineSegment(V(34, 30, 0), V(34, 20, 0)), False)
sketch2.addGeometry(Part.LineSegment(V(34, 20, 0), V(42, 20, 0)), False)
sketch2.addGeometry(Part.LineSegment(V(42, 20, 0), V(42, 30, 0)), False)
sketch2.addGeometry(Part.LineSegment(V(42, 30, 0), V(34, 30, 0)), False)
sketch2.addGeometry(Part.LineSegment(V(34, 40, 0), V(34, 31, 0)), False)
sketch2.addGeometry(Part.LineSegment(V(34, 31, 0), V(42, 31, 0)), False)
sketch2.addGeometry(Part.LineSegment(V(42, 31, 0), V(42, 40, 0)), False)
sketch2.addGeometry(Part.LineSegment(V(42, 40, 0), V(34, 40, 0)), False)
sketch2.addGeometry(Part.LineSegment(V(44, 19, 0), V(44, 10, 0)), False)
sketch2.addGeometry(Part.LineSegment(V(44, 10, 0), V(52, 10, 0)), False)
sketch2.addGeometry(Part.LineSegment(V(52, 10, 0), V(52, 19, 0)), False)
sketch2.addGeometry(Part.LineSegment(V(52, 19, 0), V(44, 19, 0)), False)
sketch2.addGeometry(Part.LineSegment(V(44, 30, 0), V(44, 20, 0)), False)
sketch2.addGeometry(Part.LineSegment(V(44, 20, 0), V(52, 20, 0)), False)
sketch2.addGeometry(Part.LineSegment(V(52, 20, 0), V(52, 30, 0)), False)
sketch2.addGeometry(Part.LineSegment(V(52, 30, 0), V(44, 30, 0)), False)
sketch2.addGeometry(Part.LineSegment(V(44, 40, 0), V(44, 31, 0)), False)
sketch2.addGeometry(Part.LineSegment(V(44, 31, 0), V(52, 31, 0)), False)
sketch2.addGeometry(Part.LineSegment(V(52, 31, 0), V(52, 40, 0)), False)
sketch2.addGeometry(Part.LineSegment(V(52, 40, 0), V(44, 40, 0)), False)
sketch2.addGeometry(Part.LineSegment(V(52, 19, 0), V(52, 10, 0)), False)
sketch2.addGeometry(Part.LineSegment(V(52, 10, 0), V(60, 10, 0)), False)
sketch2.addGeometry(Part.LineSegment(V(60, 10, 0), V(60, 19, 0)), False)
sketch2.addGeometry(Part.LineSegment(V(60, 19, 0), V(52, 19, 0)), False)
sketch2.addGeometry(Part.LineSegment(V(52, 30, 0), V(52, 20, 0)), False)
sketch2.addGeometry(Part.LineSegment(V(52, 20, 0), V(60, 20, 0)), False)
sketch2.addGeometry(Part.LineSegment(V(60, 20, 0), V(60, 30, 0)), False)
sketch2.addGeometry(Part.LineSegment(V(60, 30, 0), V(52, 30, 0)), False)
sketch2.addGeometry(Part.LineSegment(V(52, 40, 0), V(52, 31, 0)), False)
sketch2.addGeometry(Part.LineSegment(V(52, 31, 0), V(60, 31, 0)), False)
sketch2.addGeometry(Part.LineSegment(V(60, 31, 0), V(60, 40, 0)), False)
sketch2.addGeometry(Part.LineSegment(V(60, 40, 0), V(52, 40, 0)), False)
sketch2.addGeometry(Part.LineSegment(V(62, 19, 0), V(62, 10, 0)), False)
sketch2.addGeometry(Part.LineSegment(V(62, 10, 0), V(70, 10, 0)), False)
sketch2.addGeometry(Part.LineSegment(V(70, 10, 0), V(70, 19, 0)), False)
sketch2.addGeometry(Part.LineSegment(V(70, 19, 0), V(62, 19, 0)), False)
sketch2.addGeometry(Part.LineSegment(V(62, 30, 0), V(62, 20, 0)), False)
sketch2.addGeometry(Part.LineSegment(V(62, 20, 0), V(70, 20, 0)), False)
sketch2.addGeometry(Part.LineSegment(V(70, 20, 0), V(70, 30, 0)), False)
sketch2.addGeometry(Part.LineSegment(V(70, 30, 0), V(62, 30, 0)), False)
sketch2.addGeometry(Part.LineSegment(V(62, 40, 0), V(62, 31, 0)), False)
sketch2.addGeometry(Part.LineSegment(V(62, 31, 0), V(70, 31, 0)), False)
sketch2.addGeometry(Part.LineSegment(V(70, 31, 0), V(70, 40, 0)), False)
sketch2.addGeometry(Part.LineSegment(V(70, 40, 0), V(62, 40, 0)), False)
sketch2.addConstraint(Sketcher.Constraint("Coincident", 0, 2, 1, 1))
sketch2.addConstraint(Sketcher.Constraint("Coincident", 1, 2, 2, 1))
sketch2.addConstraint(Sketcher.Constraint("Coincident", 2, 2, 3, 1))
sketch2.addConstraint(Sketcher.Constraint("Coincident", 3, 2, 0, 1))
sketch2.addConstraint(Sketcher.Constraint("Coincident", 4, 2, 5, 1))
sketch2.addConstraint(Sketcher.Constraint("Coincident", 5, 2, 6, 1))
sketch2.addConstraint(Sketcher.Constraint("Coincident", 6, 2, 7, 1))
sketch2.addConstraint(Sketcher.Constraint("Coincident", 7, 2, 4, 1))
sketch2.addConstraint(Sketcher.Constraint("Coincident", 8, 2, 9, 1))
sketch2.addConstraint(Sketcher.Constraint("Coincident", 9, 2, 10, 1))
sketch2.addConstraint(Sketcher.Constraint("Coincident", 10, 2, 11, 1))
sketch2.addConstraint(Sketcher.Constraint("Coincident", 11, 2, 8, 1))
sketch2.addConstraint(Sketcher.Constraint("Coincident", 12, 2, 13, 1))
sketch2.addConstraint(Sketcher.Constraint("Coincident", 13, 2, 14, 1))
sketch2.addConstraint(Sketcher.Constraint("Coincident", 14, 2, 15, 1))
sketch2.addConstraint(Sketcher.Constraint("Coincident", 15, 2, 12, 1))
sketch2.addConstraint(Sketcher.Constraint("Coincident", 16, 2, 17, 1))
sketch2.addConstraint(Sketcher.Constraint("Coincident", 17, 2, 18, 1))
sketch2.addConstraint(Sketcher.Constraint("Coincident", 18, 2, 19, 1))
sketch2.addConstraint(Sketcher.Constraint("Coincident", 19, 2, 16, 1))
sketch2.addConstraint(Sketcher.Constraint("Coincident", 20, 2, 21, 1))
sketch2.addConstraint(Sketcher.Constraint("Coincident", 21, 2, 22, 1))
sketch2.addConstraint(Sketcher.Constraint("Coincident", 22, 2, 23, 1))
sketch2.addConstraint(Sketcher.Constraint("Coincident", 23, 2, 20, 1))
sketch2.addConstraint(Sketcher.Constraint("Coincident", 24, 2, 25, 1))
sketch2.addConstraint(Sketcher.Constraint("Coincident", 25, 2, 26, 1))
sketch2.addConstraint(Sketcher.Constraint("Coincident", 26, 2, 27, 1))
sketch2.addConstraint(Sketcher.Constraint("Coincident", 27, 2, 24, 1))
sketch2.addConstraint(Sketcher.Constraint("Coincident", 28, 2, 29, 1))
sketch2.addConstraint(Sketcher.Constraint("Coincident", 29, 2, 30, 1))
sketch2.addConstraint(Sketcher.Constraint("Coincident", 30, 2, 31, 1))
sketch2.addConstraint(Sketcher.Constraint("Coincident", 31, 2, 28, 1))
sketch2.addConstraint(Sketcher.Constraint("Coincident", 32, 2, 33, 1))
sketch2.addConstraint(Sketcher.Constraint("Coincident", 33, 2, 34, 1))
sketch2.addConstraint(Sketcher.Constraint("Coincident", 34, 2, 35, 1))
sketch2.addConstraint(Sketcher.Constraint("Coincident", 35, 2, 32, 1))
sketch2.addConstraint(Sketcher.Constraint("Coincident", 36, 2, 37, 1))
sketch2.addConstraint(Sketcher.Constraint("Coincident", 37, 2, 38, 1))
sketch2.addConstraint(Sketcher.Constraint("Coincident", 38, 2, 39, 1))
sketch2.addConstraint(Sketcher.Constraint("Coincident", 39, 2, 36, 1))
sketch2.addConstraint(Sketcher.Constraint("Coincident", 40, 2, 41, 1))
sketch2.addConstraint(Sketcher.Constraint("Coincident", 41, 2, 42, 1))
sketch2.addConstraint(Sketcher.Constraint("Coincident", 42, 2, 43, 1))
sketch2.addConstraint(Sketcher.Constraint("Coincident", 43, 2, 40, 1))
sketch2.addConstraint(Sketcher.Constraint("Coincident", 44, 2, 45, 1))
sketch2.addConstraint(Sketcher.Constraint("Coincident", 45, 2, 46, 1))
sketch2.addConstraint(Sketcher.Constraint("Coincident", 46, 2, 47, 1))
sketch2.addConstraint(Sketcher.Constraint("Coincident", 47, 2, 44, 1))
sketch2.addConstraint(Sketcher.Constraint("Coincident", 48, 2, 49, 1))
sketch2.addConstraint(Sketcher.Constraint("Coincident", 49, 2, 50, 1))
sketch2.addConstraint(Sketcher.Constraint("Coincident", 50, 2, 51, 1))
sketch2.addConstraint(Sketcher.Constraint("Coincident", 51, 2, 48, 1))
sketch2.addConstraint(Sketcher.Constraint("Coincident", 52, 2, 53, 1))
sketch2.addConstraint(Sketcher.Constraint("Coincident", 53, 2, 54, 1))
sketch2.addConstraint(Sketcher.Constraint("Coincident", 54, 2, 55, 1))
sketch2.addConstraint(Sketcher.Constraint("Coincident", 55, 2, 52, 1))
sketch2.addConstraint(Sketcher.Constraint("Coincident", 56, 2, 57, 1))
sketch2.addConstraint(Sketcher.Constraint("Coincident", 57, 2, 58, 1))
sketch2.addConstraint(Sketcher.Constraint("Coincident", 58, 2, 59, 1))
sketch2.addConstraint(Sketcher.Constraint("Coincident", 59, 2, 56, 1))
sketch2.addConstraint(Sketcher.Constraint("Vertical", 0))
sketch2.addConstraint(Sketcher.Constraint("Horizontal", 1))
sketch2.addConstraint(Sketcher.Constraint("Vertical", 2))
sketch2.addConstraint(Sketcher.Constraint("Horizontal", 3))
sketch2.addConstraint(Sketcher.Constraint("Vertical", 4))
sketch2.addConstraint(Sketcher.Constraint("Horizontal", 5))
sketch2.addConstraint(Sketcher.Constraint("Vertical", 6))
sketch2.addConstraint(Sketcher.Constraint("Horizontal", 7))
sketch2.addConstraint(Sketcher.Constraint("Vertical", 8))
sketch2.addConstraint(Sketcher.Constraint("Horizontal", 9))
sketch2.addConstraint(Sketcher.Constraint("Vertical", 10))
sketch2.addConstraint(Sketcher.Constraint("Horizontal", 11))
sketch2.addConstraint(Sketcher.Constraint("Vertical", 12))
sketch2.addConstraint(Sketcher.Constraint("Horizontal", 13))
sketch2.addConstraint(Sketcher.Constraint("Vertical", 14))
sketch2.addConstraint(Sketcher.Constraint("Horizontal", 15))
sketch2.addConstraint(Sketcher.Constraint("Vertical", 16))
sketch2.addConstraint(Sketcher.Constraint("Horizontal", 17))
sketch2.addConstraint(Sketcher.Constraint("Vertical", 18))
sketch2.addConstraint(Sketcher.Constraint("Horizontal", 19))
sketch2.addConstraint(Sketcher.Constraint("Vertical", 20))
sketch2.addConstraint(Sketcher.Constraint("Horizontal", 21))
sketch2.addConstraint(Sketcher.Constraint("Vertical", 22))
sketch2.addConstraint(Sketcher.Constraint("Horizontal", 23))
sketch2.addConstraint(Sketcher.Constraint("Vertical", 24))
sketch2.addConstraint(Sketcher.Constraint("Horizontal", 25))
sketch2.addConstraint(Sketcher.Constraint("Vertical", 26))
sketch2.addConstraint(Sketcher.Constraint("Horizontal", 27))
sketch2.addConstraint(Sketcher.Constraint("Vertical", 28))
sketch2.addConstraint(Sketcher.Constraint("Horizontal", 29))
sketch2.addConstraint(Sketcher.Constraint("Vertical", 30))
sketch2.addConstraint(Sketcher.Constraint("Horizontal", 31))
sketch2.addConstraint(Sketcher.Constraint("Vertical", 32))
sketch2.addConstraint(Sketcher.Constraint("Horizontal", 33))
sketch2.addConstraint(Sketcher.Constraint("Vertical", 34))
sketch2.addConstraint(Sketcher.Constraint("Horizontal", 35))
sketch2.addConstraint(Sketcher.Constraint("Vertical", 36))
sketch2.addConstraint(Sketcher.Constraint("Horizontal", 37))
sketch2.addConstraint(Sketcher.Constraint("Vertical", 38))
sketch2.addConstraint(Sketcher.Constraint("Horizontal", 39))
sketch2.addConstraint(Sketcher.Constraint("Vertical", 40))
sketch2.addConstraint(Sketcher.Constraint("Horizontal", 41))
sketch2.addConstraint(Sketcher.Constraint("Vertical", 42))
sketch2.addConstraint(Sketcher.Constraint("Horizontal", 43))
sketch2.addConstraint(Sketcher.Constraint("Vertical", 44))
sketch2.addConstraint(Sketcher.Constraint("Horizontal", 45))
sketch2.addConstraint(Sketcher.Constraint("Vertical", 46))
sketch2.addConstraint(Sketcher.Constraint("Horizontal", 47))
sketch2.addConstraint(Sketcher.Constraint("Vertical", 48))
sketch2.addConstraint(Sketcher.Constraint("Horizontal", 49))
sketch2.addConstraint(Sketcher.Constraint("Vertical", 50))
sketch2.addConstraint(Sketcher.Constraint("Horizontal", 51))
sketch2.addConstraint(Sketcher.Constraint("Vertical", 52))
sketch2.addConstraint(Sketcher.Constraint("Horizontal", 53))
sketch2.addConstraint(Sketcher.Constraint("Vertical", 54))
sketch2.addConstraint(Sketcher.Constraint("Horizontal", 55))
sketch2.addConstraint(Sketcher.Constraint("Vertical", 56))
sketch2.addConstraint(Sketcher.Constraint("Horizontal", 57))
sketch2.addConstraint(Sketcher.Constraint("Vertical", 58))
sketch2.addConstraint(Sketcher.Constraint("Horizontal", 59))
sketch2.addConstraint(Sketcher.Constraint("Horizontal", 1, 2, 12, 2))
sketch2.addConstraint(Sketcher.Constraint("Horizontal", 3, 2, 14, 2))
sketch2.addConstraint(Sketcher.Constraint("Horizontal", 5, 2, 16, 2))
sketch2.addConstraint(Sketcher.Constraint("Horizontal", 7, 2, 18, 2))
sketch2.addConstraint(Sketcher.Constraint("Horizontal", 9, 2, 20, 2))
sketch2.addConstraint(Sketcher.Constraint("Horizontal", 11, 2, 22, 2))
sketch2.addConstraint(Sketcher.Constraint("Horizontal", 13, 2, 24, 2))
sketch2.addConstraint(Sketcher.Constraint("Horizontal", 15, 2, 26, 2))
sketch2.addConstraint(Sketcher.Constraint("Horizontal", 17, 2, 28, 2))
sketch2.addConstraint(Sketcher.Constraint("Horizontal", 19, 2, 30, 2))
sketch2.addConstraint(Sketcher.Constraint("Horizontal", 21, 2, 32, 2))
sketch2.addConstraint(Sketcher.Constraint("Horizontal", 23, 2, 34, 2))
sketch2.addConstraint(Sketcher.Constraint("Horizontal", 25, 2, 36, 2))
sketch2.addConstraint(Sketcher.Constraint("Horizontal", 27, 2, 38, 2))
sketch2.addConstraint(Sketcher.Constraint("Horizontal", 29, 2, 40, 2))
sketch2.addConstraint(Sketcher.Constraint("Horizontal", 31, 2, 42, 2))
sketch2.addConstraint(Sketcher.Constraint("Horizontal", 33, 2, 44, 2))
sketch2.addConstraint(Sketcher.Constraint("Horizontal", 35, 2, 46, 2))
sketch2.addConstraint(Sketcher.Constraint("Horizontal", 37, 2, 48, 2))
sketch2.addConstraint(Sketcher.Constraint("Horizontal", 39, 2, 50, 2))
sketch2.addConstraint(Sketcher.Constraint("Horizontal", 41, 2, 52, 2))
sketch2.addConstraint(Sketcher.Constraint("Horizontal", 43, 2, 54, 2))
sketch2.addConstraint(Sketcher.Constraint("Horizontal", 45, 2, 56, 2))
sketch2.addConstraint(Sketcher.Constraint("Horizontal", 47, 2, 58, 2))
sketch2.addConstraint(Sketcher.Constraint("Vertical", 3, 2, 4, 2))
sketch2.addConstraint(Sketcher.Constraint("Vertical", 2, 2, 5, 2))
sketch2.addConstraint(Sketcher.Constraint("Vertical", 7, 2, 8, 2))
sketch2.addConstraint(Sketcher.Constraint("Vertical", 6, 2, 9, 2))
sketch2.addConstraint(Sketcher.Constraint("Vertical", 15, 2, 16, 2))
sketch2.addConstraint(Sketcher.Constraint("Vertical", 14, 2, 17, 2))
sketch2.addConstraint(Sketcher.Constraint("Vertical", 19, 2, 20, 2))
sketch2.addConstraint(Sketcher.Constraint("Vertical", 18, 2, 21, 2))
sketch2.addConstraint(Sketcher.Constraint("Vertical", 27, 2, 28, 2))
sketch2.addConstraint(Sketcher.Constraint("Vertical", 26, 2, 29, 2))
sketch2.addConstraint(Sketcher.Constraint("Vertical", 31, 2, 32, 2))
sketch2.addConstraint(Sketcher.Constraint("Vertical", 30, 2, 33, 2))
sketch2.addConstraint(Sketcher.Constraint("Vertical", 39, 2, 40, 2))
sketch2.addConstraint(Sketcher.Constraint("Vertical", 38, 2, 41, 2))
sketch2.addConstraint(Sketcher.Constraint("Vertical", 43, 2, 44, 2))
sketch2.addConstraint(Sketcher.Constraint("Vertical", 42, 2, 45, 2))
sketch2.addConstraint(Sketcher.Constraint("Vertical", 51, 2, 52, 2))
sketch2.addConstraint(Sketcher.Constraint("Vertical", 50, 2, 53, 2))
sketch2.addConstraint(Sketcher.Constraint("Vertical", 55, 2, 56, 2))
sketch2.addConstraint(Sketcher.Constraint("Vertical", 54, 2, 57, 2))
sketch2.addConstraint(Sketcher.Constraint("Equal", 11, 13))
sketch2.addConstraint(Sketcher.Constraint("Equal", 23, 25))
sketch2.addConstraint(Sketcher.Constraint("Equal", 35, 37))
sketch2.addConstraint(Sketcher.Constraint("Equal", 47, 49))
sketch2.addConstraint(Sketcher.Constraint("Equal", 2, 4))
sketch2.addConstraint(Sketcher.Constraint("Equal", 6, 8))
sketch2.addConstraint(Sketcher.Constraint("DistanceX", 1, 1, 1, 2, Q("8 mm")))
sketch2.addConstraint(Sketcher.Constraint("DistanceY", 0, 2, 0, 1, Q("9.4 mm")))
sketch2.addConstraint(Sketcher.Constraint("DistanceY", -1, 1, 0, 2, Q("10 mm")))
sketch2.addConstraint(Sketcher.Constraint("DistanceY", 3, 2, 4, 2, Q("1 mm")))
sketch2.addConstraint(Sketcher.Constraint("DistanceY", 7, 2, 8, 2, Q("1 mm")))
sketch2.addConstraint(Sketcher.Constraint("DistanceX", 1, 2, 12, 2, Q("1 mm")))
sketch2.addConstraint(Sketcher.Constraint("DistanceX", 13, 2, 24, 2, Q("1 mm")))
sketch2.addConstraint(Sketcher.Constraint("DistanceX", 25, 2, 36, 2, Q("1 mm")))
sketch2.addConstraint(Sketcher.Constraint("DistanceX", 37, 2, 48, 2, Q("1 mm")))
sketch2.addConstraint(Sketcher.Constraint("DistanceX", -1, 1, 0, 2, Q("25.5 mm")))
pocket1 = body.newObject("PartDesign::Pocket", "Pocket")
pocket1.Profile = sketch2
pocket1.Type = "ThroughAll"

doc.recompute()
